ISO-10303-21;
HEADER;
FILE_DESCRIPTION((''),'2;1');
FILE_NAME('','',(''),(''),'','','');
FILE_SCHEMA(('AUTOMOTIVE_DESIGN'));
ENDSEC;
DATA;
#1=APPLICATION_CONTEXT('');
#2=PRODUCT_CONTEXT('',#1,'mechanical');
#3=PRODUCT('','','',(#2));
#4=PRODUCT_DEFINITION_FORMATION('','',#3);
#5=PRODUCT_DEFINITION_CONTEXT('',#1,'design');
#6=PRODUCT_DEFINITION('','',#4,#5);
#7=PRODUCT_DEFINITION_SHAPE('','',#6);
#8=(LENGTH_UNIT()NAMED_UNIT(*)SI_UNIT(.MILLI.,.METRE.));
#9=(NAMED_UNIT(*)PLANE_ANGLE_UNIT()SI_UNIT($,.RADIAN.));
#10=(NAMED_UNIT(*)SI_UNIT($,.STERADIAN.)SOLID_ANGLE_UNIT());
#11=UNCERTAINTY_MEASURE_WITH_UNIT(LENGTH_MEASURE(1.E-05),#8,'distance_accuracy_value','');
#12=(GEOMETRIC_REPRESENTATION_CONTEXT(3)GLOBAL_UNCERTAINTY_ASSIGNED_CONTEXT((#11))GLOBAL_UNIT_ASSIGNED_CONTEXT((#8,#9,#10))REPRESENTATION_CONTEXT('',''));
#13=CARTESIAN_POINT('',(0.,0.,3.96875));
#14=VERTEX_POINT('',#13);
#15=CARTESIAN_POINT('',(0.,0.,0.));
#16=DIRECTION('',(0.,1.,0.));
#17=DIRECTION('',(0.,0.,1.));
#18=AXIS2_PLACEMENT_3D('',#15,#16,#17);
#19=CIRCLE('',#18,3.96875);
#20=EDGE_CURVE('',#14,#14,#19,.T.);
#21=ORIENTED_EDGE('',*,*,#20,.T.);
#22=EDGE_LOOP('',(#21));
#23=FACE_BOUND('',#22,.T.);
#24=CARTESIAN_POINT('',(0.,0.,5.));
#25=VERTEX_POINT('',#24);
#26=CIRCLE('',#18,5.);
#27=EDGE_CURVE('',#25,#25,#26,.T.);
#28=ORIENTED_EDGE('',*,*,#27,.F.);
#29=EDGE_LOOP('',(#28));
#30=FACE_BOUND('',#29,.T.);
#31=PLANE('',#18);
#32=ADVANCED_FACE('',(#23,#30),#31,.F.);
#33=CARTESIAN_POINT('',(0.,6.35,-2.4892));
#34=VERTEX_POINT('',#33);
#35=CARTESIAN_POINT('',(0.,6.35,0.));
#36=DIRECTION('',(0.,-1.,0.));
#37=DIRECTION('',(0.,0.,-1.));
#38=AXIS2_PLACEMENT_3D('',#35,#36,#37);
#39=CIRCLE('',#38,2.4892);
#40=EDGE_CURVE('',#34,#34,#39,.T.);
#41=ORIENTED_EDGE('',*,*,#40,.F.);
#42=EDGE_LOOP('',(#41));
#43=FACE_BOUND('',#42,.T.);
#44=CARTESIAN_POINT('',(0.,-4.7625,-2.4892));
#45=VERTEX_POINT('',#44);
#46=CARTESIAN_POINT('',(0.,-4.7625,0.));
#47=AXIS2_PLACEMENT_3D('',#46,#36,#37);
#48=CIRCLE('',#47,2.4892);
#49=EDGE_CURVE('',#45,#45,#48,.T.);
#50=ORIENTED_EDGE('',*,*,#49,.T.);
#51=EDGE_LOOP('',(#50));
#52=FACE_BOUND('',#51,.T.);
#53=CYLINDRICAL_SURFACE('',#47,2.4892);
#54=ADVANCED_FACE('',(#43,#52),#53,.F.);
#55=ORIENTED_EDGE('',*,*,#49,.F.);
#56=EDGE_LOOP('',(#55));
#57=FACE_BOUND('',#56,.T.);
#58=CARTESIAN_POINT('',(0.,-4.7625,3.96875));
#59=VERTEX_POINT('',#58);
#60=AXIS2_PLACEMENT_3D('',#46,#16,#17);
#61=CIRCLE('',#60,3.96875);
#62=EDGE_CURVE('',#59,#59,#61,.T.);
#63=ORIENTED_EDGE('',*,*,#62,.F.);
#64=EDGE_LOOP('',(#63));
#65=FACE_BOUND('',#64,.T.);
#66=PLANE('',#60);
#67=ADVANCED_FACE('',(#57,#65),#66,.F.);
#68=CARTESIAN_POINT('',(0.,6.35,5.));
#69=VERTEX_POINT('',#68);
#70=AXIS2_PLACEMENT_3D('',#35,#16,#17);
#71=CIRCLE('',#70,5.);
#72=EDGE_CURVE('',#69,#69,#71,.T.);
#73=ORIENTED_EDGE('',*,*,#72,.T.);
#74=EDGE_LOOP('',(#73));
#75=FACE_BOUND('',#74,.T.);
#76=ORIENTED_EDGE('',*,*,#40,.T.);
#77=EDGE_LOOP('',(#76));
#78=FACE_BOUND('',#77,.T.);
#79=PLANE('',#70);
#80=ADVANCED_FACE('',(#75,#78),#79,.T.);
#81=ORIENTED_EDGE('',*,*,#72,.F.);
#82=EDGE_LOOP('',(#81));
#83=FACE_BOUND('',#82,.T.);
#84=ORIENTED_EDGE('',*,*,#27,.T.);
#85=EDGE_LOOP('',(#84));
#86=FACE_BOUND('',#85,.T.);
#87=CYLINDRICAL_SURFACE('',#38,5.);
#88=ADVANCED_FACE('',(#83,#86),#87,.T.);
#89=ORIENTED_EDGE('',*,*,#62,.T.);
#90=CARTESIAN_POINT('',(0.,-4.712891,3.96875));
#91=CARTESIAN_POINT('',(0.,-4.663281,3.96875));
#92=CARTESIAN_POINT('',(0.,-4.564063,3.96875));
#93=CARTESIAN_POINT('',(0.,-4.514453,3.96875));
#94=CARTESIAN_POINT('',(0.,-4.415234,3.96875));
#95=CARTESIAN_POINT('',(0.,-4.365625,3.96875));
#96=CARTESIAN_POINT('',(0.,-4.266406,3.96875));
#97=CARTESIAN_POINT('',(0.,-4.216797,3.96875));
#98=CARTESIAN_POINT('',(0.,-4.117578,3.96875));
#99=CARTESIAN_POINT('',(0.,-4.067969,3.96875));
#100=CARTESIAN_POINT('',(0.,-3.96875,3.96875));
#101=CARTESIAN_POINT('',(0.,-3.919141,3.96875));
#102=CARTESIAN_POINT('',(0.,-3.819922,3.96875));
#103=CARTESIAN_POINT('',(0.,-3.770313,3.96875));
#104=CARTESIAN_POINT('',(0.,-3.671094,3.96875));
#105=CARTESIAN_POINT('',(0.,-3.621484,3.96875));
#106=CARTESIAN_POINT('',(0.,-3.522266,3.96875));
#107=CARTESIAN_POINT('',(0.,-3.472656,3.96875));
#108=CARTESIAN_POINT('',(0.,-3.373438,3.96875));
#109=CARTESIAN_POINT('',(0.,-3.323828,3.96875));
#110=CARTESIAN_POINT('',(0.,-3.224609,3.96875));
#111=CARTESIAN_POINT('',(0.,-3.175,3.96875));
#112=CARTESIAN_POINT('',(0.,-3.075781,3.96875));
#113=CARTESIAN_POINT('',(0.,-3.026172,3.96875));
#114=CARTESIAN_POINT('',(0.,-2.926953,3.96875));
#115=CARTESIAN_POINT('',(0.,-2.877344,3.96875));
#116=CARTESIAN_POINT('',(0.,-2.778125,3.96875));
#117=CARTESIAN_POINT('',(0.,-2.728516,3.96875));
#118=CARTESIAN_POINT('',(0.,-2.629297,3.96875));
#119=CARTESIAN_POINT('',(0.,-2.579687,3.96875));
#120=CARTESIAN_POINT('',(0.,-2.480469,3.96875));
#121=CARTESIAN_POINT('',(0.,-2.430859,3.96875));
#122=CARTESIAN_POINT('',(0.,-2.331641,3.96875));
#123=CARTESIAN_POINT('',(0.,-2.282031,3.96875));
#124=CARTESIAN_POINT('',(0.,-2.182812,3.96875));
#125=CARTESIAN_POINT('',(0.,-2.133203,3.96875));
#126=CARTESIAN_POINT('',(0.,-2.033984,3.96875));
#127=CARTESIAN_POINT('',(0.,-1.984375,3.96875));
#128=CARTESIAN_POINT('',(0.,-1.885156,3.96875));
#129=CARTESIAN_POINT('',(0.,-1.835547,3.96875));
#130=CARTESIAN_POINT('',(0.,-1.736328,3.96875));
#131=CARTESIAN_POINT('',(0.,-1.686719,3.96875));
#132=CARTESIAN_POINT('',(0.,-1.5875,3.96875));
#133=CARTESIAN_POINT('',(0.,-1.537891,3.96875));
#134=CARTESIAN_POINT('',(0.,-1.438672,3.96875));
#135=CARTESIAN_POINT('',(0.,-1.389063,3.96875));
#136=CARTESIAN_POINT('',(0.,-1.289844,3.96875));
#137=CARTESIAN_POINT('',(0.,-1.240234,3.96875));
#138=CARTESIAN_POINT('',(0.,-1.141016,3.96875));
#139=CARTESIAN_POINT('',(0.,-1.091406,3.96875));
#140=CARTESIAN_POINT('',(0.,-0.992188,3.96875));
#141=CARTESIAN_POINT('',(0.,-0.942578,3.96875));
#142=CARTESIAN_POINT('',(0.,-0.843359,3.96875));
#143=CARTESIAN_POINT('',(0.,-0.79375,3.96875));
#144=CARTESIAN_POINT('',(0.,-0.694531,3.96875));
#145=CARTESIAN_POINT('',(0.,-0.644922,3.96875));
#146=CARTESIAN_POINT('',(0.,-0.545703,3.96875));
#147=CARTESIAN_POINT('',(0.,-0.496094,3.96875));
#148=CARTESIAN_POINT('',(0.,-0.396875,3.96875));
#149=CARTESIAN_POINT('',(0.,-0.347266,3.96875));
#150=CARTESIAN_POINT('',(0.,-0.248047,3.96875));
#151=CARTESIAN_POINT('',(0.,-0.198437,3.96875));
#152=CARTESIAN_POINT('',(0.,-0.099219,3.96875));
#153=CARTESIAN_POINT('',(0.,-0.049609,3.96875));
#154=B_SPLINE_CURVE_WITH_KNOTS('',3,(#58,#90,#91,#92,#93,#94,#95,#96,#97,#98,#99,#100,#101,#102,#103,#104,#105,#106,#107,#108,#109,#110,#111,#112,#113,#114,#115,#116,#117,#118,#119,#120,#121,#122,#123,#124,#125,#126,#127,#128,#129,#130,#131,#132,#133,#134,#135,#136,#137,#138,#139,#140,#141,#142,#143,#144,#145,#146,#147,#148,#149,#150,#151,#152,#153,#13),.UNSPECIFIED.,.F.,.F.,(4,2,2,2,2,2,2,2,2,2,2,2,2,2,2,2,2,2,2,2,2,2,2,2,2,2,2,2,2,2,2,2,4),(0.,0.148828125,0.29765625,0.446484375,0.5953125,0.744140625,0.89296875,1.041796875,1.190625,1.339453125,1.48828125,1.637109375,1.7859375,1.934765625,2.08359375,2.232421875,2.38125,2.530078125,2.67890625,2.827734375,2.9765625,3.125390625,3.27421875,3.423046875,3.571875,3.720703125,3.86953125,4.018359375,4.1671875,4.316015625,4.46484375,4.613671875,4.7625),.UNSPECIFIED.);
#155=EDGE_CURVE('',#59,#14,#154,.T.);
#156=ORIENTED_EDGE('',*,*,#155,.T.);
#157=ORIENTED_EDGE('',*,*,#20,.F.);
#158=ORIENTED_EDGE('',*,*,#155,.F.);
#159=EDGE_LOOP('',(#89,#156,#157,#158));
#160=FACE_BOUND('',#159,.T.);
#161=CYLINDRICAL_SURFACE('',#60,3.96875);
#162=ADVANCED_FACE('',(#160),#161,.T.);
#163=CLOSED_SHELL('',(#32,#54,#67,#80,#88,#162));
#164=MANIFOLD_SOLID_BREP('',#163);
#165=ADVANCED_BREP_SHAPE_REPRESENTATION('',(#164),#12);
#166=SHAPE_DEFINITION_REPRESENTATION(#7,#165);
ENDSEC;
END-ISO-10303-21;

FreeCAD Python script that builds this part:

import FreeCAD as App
import Part
import Sketcher

V = App.Vector
Q = App.Units.Quantity

doc = App.newDocument("Part")
body = doc.addObject("PartDesign::Body", "Body")

# Sketch on XZ plane
sketch1 = body.newObject("Sketcher::SketchObject", "Sketch")
sketch1.AttachmentSupport = (doc.getObject("XZ_Plane"), [""])
sketch1.MapMode = "FlatFace"
sketch1.addGeometry(Part.Circle(V(0, 0, 0), V(0, 0, 1), 5), False)
sketch1.addConstraint([
    Sketcher.Constraint("Coincident", 0, 3, -1, 1),
    Sketcher.Constraint("Diameter", 0, Q("10 mm")),
])
pad1 = body.newObject("PartDesign::Pad", "Pad")
pad1.Profile = sketch1
pad1.Length = Q("0.25 in")
pad1.Reversed = True

# Sketch on XZ plane
sketch2 = body.newObject("Sketcher::SketchObject", "Sketch001")
sketch2.AttachmentSupport = (doc.getObject("XZ_Plane"), [""])
sketch2.MapMode = "FlatFace"
sketch2.addGeometry(Part.Circle(V(0, 0, 0), V(0, 0, 1), 3.96875), False)
sketch2.addConstraint([
    Sketcher.Constraint("Coincident", 0, 3, -1, 1),
    Sketcher.Constraint("Diameter", 0, Q("0.3125 in")),
])
pad2 = body.newObject("PartDesign::Pad", "Pad001")
pad2.Profile = sketch2
pad2.Length = Q("0.1875 in")

# Sketch on XZ plane
sketch3 = body.newObject("Sketcher::SketchObject", "Sketch002")
sketch3.AttachmentSupport = (doc.getObject("XZ_Plane"), [""])
sketch3.MapMode = "FlatFace"
sketch3.AttachmentOffset = App.Placement(V(0, 0, 0.1875 * 25.4), App.Rotation())
sketch3.addGeometry(Part.Circle(V(0, 0, 0), V(0, 0, 1), 2.4892), False)
sketch3.addConstraint([
    Sketcher.Constraint("Coincident", 0, 3, -1, 1),
    Sketcher.Constraint("Diameter", 0, Q("0.196 in")),
])
doc.recompute()
hole = body.newObject("PartDesign::Hole", "Hole")
hole.Profile = sketch3
hole.ThreadType = "None"
hole.Diameter = Q("0.196 in")
hole.DepthType = "ThroughAll"

doc.recompute()
